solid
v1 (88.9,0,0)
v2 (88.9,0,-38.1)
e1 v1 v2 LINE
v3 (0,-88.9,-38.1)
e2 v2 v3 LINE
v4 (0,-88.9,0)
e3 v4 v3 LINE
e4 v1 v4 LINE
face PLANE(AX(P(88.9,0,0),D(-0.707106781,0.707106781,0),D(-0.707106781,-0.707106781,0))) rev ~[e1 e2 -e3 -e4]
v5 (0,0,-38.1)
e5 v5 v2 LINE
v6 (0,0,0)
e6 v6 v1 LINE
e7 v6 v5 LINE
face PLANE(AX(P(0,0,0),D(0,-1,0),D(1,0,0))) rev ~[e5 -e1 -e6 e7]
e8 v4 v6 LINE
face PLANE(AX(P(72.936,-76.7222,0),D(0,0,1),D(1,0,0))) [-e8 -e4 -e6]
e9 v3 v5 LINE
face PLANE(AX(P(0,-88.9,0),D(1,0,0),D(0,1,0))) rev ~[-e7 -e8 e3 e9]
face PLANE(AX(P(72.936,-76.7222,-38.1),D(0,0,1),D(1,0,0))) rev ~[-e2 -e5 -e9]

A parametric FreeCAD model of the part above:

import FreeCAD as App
import Part
import Sketcher

V = App.Vector
Q = App.Units.Quantity


def add_polygon(sketch, points):
    """Adds a closed chain of lines whose ends are joined by coincident constraints."""
    first, n = sketch.GeometryCount, len(points)
    for a, b in zip(points, points[1:] + points[:1]):
        sketch.addGeometry(Part.LineSegment(App.Vector(*a, 0), App.Vector(*b, 0)), False)
    for i in range(n):
        sketch.addConstraint(Sketcher.Constraint("Coincident", first + i, 2, first + (i + 1) % n, 1))

doc = App.newDocument("Part")
params = doc.addObject("Spreadsheet::Sheet", "Params")
for row, (alias, value) in enumerate([
    ("sketch1_width", "3.5 in"),
    ("pad1_length", "1.5 in"),
], start=1):
    params.set(f"A{row}", alias)
    params.set(f"B{row}", "=" + value)
    params.setAlias(f"B{row}", alias)

body = doc.addObject("PartDesign::Body", "Body")

sketch1 = body.newObject("Sketcher::SketchObject", "Sketch")
sketch1.AttachmentSupport = (doc.getObject("XY_Plane"), [""])
sketch1.MapMode = "FlatFace"
add_polygon(sketch1, [(88.9, 0), (0, 0), (0, -88.9)])
sketch1.addConstraint(Sketcher.Constraint("Horizontal", 0))
sketch1.addConstraint(Sketcher.Constraint("Vertical", 1))
sketch1.addConstraint(Sketcher.Constraint("Coincident", 0, 2, -1, 1))
sketch1.addConstraint(Sketcher.Constraint("Equal", 0, 1))
sketch1.addConstraint(Sketcher.Constraint("DistanceX", 0, 2, 0, 1, Q("3.5 in")))
sketch1.setExpression("Constraints[7]", "Params.sketch1_width")
pad1 = body.newObject("PartDesign::Pad", "Pad")
pad1.Profile = sketch1
pad1.setExpression("Length", "Params.pad1_length")
pad1.Reversed = True

doc.recompute()
